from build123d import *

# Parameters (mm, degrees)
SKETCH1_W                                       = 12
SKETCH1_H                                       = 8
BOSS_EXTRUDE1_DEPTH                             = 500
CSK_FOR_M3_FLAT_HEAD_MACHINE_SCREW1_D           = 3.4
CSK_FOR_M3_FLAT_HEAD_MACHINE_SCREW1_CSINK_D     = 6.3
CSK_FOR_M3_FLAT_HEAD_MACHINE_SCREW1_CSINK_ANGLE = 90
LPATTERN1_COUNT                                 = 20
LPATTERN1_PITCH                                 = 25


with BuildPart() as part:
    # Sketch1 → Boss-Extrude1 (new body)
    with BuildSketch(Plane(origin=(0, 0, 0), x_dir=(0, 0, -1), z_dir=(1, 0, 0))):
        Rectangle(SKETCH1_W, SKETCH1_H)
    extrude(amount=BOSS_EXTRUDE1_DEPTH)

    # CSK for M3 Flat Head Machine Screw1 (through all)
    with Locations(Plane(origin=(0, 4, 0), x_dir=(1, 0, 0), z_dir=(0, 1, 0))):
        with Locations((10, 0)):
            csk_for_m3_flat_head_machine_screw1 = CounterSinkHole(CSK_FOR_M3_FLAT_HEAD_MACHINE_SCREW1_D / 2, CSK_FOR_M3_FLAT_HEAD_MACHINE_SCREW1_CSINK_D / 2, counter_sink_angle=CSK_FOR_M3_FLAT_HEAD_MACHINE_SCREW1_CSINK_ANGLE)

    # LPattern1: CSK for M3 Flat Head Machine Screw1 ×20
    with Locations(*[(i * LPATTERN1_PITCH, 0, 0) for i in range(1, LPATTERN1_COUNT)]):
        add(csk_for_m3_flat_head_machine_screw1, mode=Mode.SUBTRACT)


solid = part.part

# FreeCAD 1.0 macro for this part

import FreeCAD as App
import Part
import Sketcher

V = App.Vector


def add_polygon(sketch, points):
    """Adds a closed chain of lines whose ends are joined by coincident constraints."""
    first, n = sketch.GeometryCount, len(points)
    for a, b in zip(points, points[1:] + points[:1]):
        sketch.addGeometry(Part.LineSegment(App.Vector(*a, 0), App.Vector(*b, 0)), False)
    for i in range(n):
        sketch.addConstraint(Sketcher.Constraint("Coincident", first + i, 2, first + (i + 1) % n, 1))

doc = App.newDocument("Part")
body = doc.addObject("PartDesign::Body", "Body")

sketch1 = doc.addObject("Sketcher::SketchObject", "Sketch")
body.addObject(sketch1)
sketch1.AttachmentSupport = (doc.YZ_Plane, [""])
sketch1.MapMode = "FlatFace"
add_polygon(sketch1, [(4, 6), (-4, 6), (-4, -6), (4, -6)])
sketch1.addConstraint([
    Sketcher.Constraint("Horizontal", 0),
    Sketcher.Constraint("Vertical", 1),
    Sketcher.Constraint("Horizontal", 2),
    Sketcher.Constraint("Vertical", 3),
    Sketcher.Constraint("Symmetric", 0, 2, 2, 2, -1, 1),
    Sketcher.Constraint("DistanceX", 0, 2, 0, 1, 8.0),
    Sketcher.Constraint("DistanceY", 1, 2, 1, 1, 12.0),
])
pad1 = doc.addObject("PartDesign::Pad", "Pad")
body.addObject(pad1)
pad1.Profile = sketch1
pad1.Length = 500

sketch2 = doc.addObject("Sketcher::SketchObject", "Sketch001")
body.addObject(sketch2)
sketch2.AttachmentSupport = (doc.XZ_Plane, [""])
sketch2.MapMode = "FlatFace"
sketch2.AttachmentOffset = App.Placement(V(0, 0, -4), App.Rotation())
sketch2.addGeometry(Part.Circle(V(10, 0, 0), V(0, 0, 1), 1.7), False)
sketch2.addConstraint([
    Sketcher.Constraint("PointOnObject", 0, 3, -1),
    Sketcher.Constraint("Diameter", 0, 3.4),
    Sketcher.Constraint("DistanceX", -1, 1, 0, 3, 10.0),
])
doc.recompute()
hole = doc.addObject("PartDesign::Hole", "Hole")
body.addObject(hole)
hole.Profile = sketch2
hole.ThreadType = "None"
hole.Diameter = 3.4
hole.DepthType = "ThroughAll"
hole.HoleCutType = "Countersink"
hole.HoleCutDiameter = 6.3
hole.HoleCutCountersinkAngle = 90
hole.Reversed = True
doc.recompute()

linearpattern = doc.addObject("PartDesign::LinearPattern", "LinearPattern")
body.addObject(linearpattern)
linearpattern.Originals = [hole]
linearpattern.Direction = (doc.X_Axis, [""])
linearpattern.Mode = "offset"
linearpattern.Offset = 25
linearpattern.Occurrences = 20
body.Tip = linearpattern

doc.recompute()
